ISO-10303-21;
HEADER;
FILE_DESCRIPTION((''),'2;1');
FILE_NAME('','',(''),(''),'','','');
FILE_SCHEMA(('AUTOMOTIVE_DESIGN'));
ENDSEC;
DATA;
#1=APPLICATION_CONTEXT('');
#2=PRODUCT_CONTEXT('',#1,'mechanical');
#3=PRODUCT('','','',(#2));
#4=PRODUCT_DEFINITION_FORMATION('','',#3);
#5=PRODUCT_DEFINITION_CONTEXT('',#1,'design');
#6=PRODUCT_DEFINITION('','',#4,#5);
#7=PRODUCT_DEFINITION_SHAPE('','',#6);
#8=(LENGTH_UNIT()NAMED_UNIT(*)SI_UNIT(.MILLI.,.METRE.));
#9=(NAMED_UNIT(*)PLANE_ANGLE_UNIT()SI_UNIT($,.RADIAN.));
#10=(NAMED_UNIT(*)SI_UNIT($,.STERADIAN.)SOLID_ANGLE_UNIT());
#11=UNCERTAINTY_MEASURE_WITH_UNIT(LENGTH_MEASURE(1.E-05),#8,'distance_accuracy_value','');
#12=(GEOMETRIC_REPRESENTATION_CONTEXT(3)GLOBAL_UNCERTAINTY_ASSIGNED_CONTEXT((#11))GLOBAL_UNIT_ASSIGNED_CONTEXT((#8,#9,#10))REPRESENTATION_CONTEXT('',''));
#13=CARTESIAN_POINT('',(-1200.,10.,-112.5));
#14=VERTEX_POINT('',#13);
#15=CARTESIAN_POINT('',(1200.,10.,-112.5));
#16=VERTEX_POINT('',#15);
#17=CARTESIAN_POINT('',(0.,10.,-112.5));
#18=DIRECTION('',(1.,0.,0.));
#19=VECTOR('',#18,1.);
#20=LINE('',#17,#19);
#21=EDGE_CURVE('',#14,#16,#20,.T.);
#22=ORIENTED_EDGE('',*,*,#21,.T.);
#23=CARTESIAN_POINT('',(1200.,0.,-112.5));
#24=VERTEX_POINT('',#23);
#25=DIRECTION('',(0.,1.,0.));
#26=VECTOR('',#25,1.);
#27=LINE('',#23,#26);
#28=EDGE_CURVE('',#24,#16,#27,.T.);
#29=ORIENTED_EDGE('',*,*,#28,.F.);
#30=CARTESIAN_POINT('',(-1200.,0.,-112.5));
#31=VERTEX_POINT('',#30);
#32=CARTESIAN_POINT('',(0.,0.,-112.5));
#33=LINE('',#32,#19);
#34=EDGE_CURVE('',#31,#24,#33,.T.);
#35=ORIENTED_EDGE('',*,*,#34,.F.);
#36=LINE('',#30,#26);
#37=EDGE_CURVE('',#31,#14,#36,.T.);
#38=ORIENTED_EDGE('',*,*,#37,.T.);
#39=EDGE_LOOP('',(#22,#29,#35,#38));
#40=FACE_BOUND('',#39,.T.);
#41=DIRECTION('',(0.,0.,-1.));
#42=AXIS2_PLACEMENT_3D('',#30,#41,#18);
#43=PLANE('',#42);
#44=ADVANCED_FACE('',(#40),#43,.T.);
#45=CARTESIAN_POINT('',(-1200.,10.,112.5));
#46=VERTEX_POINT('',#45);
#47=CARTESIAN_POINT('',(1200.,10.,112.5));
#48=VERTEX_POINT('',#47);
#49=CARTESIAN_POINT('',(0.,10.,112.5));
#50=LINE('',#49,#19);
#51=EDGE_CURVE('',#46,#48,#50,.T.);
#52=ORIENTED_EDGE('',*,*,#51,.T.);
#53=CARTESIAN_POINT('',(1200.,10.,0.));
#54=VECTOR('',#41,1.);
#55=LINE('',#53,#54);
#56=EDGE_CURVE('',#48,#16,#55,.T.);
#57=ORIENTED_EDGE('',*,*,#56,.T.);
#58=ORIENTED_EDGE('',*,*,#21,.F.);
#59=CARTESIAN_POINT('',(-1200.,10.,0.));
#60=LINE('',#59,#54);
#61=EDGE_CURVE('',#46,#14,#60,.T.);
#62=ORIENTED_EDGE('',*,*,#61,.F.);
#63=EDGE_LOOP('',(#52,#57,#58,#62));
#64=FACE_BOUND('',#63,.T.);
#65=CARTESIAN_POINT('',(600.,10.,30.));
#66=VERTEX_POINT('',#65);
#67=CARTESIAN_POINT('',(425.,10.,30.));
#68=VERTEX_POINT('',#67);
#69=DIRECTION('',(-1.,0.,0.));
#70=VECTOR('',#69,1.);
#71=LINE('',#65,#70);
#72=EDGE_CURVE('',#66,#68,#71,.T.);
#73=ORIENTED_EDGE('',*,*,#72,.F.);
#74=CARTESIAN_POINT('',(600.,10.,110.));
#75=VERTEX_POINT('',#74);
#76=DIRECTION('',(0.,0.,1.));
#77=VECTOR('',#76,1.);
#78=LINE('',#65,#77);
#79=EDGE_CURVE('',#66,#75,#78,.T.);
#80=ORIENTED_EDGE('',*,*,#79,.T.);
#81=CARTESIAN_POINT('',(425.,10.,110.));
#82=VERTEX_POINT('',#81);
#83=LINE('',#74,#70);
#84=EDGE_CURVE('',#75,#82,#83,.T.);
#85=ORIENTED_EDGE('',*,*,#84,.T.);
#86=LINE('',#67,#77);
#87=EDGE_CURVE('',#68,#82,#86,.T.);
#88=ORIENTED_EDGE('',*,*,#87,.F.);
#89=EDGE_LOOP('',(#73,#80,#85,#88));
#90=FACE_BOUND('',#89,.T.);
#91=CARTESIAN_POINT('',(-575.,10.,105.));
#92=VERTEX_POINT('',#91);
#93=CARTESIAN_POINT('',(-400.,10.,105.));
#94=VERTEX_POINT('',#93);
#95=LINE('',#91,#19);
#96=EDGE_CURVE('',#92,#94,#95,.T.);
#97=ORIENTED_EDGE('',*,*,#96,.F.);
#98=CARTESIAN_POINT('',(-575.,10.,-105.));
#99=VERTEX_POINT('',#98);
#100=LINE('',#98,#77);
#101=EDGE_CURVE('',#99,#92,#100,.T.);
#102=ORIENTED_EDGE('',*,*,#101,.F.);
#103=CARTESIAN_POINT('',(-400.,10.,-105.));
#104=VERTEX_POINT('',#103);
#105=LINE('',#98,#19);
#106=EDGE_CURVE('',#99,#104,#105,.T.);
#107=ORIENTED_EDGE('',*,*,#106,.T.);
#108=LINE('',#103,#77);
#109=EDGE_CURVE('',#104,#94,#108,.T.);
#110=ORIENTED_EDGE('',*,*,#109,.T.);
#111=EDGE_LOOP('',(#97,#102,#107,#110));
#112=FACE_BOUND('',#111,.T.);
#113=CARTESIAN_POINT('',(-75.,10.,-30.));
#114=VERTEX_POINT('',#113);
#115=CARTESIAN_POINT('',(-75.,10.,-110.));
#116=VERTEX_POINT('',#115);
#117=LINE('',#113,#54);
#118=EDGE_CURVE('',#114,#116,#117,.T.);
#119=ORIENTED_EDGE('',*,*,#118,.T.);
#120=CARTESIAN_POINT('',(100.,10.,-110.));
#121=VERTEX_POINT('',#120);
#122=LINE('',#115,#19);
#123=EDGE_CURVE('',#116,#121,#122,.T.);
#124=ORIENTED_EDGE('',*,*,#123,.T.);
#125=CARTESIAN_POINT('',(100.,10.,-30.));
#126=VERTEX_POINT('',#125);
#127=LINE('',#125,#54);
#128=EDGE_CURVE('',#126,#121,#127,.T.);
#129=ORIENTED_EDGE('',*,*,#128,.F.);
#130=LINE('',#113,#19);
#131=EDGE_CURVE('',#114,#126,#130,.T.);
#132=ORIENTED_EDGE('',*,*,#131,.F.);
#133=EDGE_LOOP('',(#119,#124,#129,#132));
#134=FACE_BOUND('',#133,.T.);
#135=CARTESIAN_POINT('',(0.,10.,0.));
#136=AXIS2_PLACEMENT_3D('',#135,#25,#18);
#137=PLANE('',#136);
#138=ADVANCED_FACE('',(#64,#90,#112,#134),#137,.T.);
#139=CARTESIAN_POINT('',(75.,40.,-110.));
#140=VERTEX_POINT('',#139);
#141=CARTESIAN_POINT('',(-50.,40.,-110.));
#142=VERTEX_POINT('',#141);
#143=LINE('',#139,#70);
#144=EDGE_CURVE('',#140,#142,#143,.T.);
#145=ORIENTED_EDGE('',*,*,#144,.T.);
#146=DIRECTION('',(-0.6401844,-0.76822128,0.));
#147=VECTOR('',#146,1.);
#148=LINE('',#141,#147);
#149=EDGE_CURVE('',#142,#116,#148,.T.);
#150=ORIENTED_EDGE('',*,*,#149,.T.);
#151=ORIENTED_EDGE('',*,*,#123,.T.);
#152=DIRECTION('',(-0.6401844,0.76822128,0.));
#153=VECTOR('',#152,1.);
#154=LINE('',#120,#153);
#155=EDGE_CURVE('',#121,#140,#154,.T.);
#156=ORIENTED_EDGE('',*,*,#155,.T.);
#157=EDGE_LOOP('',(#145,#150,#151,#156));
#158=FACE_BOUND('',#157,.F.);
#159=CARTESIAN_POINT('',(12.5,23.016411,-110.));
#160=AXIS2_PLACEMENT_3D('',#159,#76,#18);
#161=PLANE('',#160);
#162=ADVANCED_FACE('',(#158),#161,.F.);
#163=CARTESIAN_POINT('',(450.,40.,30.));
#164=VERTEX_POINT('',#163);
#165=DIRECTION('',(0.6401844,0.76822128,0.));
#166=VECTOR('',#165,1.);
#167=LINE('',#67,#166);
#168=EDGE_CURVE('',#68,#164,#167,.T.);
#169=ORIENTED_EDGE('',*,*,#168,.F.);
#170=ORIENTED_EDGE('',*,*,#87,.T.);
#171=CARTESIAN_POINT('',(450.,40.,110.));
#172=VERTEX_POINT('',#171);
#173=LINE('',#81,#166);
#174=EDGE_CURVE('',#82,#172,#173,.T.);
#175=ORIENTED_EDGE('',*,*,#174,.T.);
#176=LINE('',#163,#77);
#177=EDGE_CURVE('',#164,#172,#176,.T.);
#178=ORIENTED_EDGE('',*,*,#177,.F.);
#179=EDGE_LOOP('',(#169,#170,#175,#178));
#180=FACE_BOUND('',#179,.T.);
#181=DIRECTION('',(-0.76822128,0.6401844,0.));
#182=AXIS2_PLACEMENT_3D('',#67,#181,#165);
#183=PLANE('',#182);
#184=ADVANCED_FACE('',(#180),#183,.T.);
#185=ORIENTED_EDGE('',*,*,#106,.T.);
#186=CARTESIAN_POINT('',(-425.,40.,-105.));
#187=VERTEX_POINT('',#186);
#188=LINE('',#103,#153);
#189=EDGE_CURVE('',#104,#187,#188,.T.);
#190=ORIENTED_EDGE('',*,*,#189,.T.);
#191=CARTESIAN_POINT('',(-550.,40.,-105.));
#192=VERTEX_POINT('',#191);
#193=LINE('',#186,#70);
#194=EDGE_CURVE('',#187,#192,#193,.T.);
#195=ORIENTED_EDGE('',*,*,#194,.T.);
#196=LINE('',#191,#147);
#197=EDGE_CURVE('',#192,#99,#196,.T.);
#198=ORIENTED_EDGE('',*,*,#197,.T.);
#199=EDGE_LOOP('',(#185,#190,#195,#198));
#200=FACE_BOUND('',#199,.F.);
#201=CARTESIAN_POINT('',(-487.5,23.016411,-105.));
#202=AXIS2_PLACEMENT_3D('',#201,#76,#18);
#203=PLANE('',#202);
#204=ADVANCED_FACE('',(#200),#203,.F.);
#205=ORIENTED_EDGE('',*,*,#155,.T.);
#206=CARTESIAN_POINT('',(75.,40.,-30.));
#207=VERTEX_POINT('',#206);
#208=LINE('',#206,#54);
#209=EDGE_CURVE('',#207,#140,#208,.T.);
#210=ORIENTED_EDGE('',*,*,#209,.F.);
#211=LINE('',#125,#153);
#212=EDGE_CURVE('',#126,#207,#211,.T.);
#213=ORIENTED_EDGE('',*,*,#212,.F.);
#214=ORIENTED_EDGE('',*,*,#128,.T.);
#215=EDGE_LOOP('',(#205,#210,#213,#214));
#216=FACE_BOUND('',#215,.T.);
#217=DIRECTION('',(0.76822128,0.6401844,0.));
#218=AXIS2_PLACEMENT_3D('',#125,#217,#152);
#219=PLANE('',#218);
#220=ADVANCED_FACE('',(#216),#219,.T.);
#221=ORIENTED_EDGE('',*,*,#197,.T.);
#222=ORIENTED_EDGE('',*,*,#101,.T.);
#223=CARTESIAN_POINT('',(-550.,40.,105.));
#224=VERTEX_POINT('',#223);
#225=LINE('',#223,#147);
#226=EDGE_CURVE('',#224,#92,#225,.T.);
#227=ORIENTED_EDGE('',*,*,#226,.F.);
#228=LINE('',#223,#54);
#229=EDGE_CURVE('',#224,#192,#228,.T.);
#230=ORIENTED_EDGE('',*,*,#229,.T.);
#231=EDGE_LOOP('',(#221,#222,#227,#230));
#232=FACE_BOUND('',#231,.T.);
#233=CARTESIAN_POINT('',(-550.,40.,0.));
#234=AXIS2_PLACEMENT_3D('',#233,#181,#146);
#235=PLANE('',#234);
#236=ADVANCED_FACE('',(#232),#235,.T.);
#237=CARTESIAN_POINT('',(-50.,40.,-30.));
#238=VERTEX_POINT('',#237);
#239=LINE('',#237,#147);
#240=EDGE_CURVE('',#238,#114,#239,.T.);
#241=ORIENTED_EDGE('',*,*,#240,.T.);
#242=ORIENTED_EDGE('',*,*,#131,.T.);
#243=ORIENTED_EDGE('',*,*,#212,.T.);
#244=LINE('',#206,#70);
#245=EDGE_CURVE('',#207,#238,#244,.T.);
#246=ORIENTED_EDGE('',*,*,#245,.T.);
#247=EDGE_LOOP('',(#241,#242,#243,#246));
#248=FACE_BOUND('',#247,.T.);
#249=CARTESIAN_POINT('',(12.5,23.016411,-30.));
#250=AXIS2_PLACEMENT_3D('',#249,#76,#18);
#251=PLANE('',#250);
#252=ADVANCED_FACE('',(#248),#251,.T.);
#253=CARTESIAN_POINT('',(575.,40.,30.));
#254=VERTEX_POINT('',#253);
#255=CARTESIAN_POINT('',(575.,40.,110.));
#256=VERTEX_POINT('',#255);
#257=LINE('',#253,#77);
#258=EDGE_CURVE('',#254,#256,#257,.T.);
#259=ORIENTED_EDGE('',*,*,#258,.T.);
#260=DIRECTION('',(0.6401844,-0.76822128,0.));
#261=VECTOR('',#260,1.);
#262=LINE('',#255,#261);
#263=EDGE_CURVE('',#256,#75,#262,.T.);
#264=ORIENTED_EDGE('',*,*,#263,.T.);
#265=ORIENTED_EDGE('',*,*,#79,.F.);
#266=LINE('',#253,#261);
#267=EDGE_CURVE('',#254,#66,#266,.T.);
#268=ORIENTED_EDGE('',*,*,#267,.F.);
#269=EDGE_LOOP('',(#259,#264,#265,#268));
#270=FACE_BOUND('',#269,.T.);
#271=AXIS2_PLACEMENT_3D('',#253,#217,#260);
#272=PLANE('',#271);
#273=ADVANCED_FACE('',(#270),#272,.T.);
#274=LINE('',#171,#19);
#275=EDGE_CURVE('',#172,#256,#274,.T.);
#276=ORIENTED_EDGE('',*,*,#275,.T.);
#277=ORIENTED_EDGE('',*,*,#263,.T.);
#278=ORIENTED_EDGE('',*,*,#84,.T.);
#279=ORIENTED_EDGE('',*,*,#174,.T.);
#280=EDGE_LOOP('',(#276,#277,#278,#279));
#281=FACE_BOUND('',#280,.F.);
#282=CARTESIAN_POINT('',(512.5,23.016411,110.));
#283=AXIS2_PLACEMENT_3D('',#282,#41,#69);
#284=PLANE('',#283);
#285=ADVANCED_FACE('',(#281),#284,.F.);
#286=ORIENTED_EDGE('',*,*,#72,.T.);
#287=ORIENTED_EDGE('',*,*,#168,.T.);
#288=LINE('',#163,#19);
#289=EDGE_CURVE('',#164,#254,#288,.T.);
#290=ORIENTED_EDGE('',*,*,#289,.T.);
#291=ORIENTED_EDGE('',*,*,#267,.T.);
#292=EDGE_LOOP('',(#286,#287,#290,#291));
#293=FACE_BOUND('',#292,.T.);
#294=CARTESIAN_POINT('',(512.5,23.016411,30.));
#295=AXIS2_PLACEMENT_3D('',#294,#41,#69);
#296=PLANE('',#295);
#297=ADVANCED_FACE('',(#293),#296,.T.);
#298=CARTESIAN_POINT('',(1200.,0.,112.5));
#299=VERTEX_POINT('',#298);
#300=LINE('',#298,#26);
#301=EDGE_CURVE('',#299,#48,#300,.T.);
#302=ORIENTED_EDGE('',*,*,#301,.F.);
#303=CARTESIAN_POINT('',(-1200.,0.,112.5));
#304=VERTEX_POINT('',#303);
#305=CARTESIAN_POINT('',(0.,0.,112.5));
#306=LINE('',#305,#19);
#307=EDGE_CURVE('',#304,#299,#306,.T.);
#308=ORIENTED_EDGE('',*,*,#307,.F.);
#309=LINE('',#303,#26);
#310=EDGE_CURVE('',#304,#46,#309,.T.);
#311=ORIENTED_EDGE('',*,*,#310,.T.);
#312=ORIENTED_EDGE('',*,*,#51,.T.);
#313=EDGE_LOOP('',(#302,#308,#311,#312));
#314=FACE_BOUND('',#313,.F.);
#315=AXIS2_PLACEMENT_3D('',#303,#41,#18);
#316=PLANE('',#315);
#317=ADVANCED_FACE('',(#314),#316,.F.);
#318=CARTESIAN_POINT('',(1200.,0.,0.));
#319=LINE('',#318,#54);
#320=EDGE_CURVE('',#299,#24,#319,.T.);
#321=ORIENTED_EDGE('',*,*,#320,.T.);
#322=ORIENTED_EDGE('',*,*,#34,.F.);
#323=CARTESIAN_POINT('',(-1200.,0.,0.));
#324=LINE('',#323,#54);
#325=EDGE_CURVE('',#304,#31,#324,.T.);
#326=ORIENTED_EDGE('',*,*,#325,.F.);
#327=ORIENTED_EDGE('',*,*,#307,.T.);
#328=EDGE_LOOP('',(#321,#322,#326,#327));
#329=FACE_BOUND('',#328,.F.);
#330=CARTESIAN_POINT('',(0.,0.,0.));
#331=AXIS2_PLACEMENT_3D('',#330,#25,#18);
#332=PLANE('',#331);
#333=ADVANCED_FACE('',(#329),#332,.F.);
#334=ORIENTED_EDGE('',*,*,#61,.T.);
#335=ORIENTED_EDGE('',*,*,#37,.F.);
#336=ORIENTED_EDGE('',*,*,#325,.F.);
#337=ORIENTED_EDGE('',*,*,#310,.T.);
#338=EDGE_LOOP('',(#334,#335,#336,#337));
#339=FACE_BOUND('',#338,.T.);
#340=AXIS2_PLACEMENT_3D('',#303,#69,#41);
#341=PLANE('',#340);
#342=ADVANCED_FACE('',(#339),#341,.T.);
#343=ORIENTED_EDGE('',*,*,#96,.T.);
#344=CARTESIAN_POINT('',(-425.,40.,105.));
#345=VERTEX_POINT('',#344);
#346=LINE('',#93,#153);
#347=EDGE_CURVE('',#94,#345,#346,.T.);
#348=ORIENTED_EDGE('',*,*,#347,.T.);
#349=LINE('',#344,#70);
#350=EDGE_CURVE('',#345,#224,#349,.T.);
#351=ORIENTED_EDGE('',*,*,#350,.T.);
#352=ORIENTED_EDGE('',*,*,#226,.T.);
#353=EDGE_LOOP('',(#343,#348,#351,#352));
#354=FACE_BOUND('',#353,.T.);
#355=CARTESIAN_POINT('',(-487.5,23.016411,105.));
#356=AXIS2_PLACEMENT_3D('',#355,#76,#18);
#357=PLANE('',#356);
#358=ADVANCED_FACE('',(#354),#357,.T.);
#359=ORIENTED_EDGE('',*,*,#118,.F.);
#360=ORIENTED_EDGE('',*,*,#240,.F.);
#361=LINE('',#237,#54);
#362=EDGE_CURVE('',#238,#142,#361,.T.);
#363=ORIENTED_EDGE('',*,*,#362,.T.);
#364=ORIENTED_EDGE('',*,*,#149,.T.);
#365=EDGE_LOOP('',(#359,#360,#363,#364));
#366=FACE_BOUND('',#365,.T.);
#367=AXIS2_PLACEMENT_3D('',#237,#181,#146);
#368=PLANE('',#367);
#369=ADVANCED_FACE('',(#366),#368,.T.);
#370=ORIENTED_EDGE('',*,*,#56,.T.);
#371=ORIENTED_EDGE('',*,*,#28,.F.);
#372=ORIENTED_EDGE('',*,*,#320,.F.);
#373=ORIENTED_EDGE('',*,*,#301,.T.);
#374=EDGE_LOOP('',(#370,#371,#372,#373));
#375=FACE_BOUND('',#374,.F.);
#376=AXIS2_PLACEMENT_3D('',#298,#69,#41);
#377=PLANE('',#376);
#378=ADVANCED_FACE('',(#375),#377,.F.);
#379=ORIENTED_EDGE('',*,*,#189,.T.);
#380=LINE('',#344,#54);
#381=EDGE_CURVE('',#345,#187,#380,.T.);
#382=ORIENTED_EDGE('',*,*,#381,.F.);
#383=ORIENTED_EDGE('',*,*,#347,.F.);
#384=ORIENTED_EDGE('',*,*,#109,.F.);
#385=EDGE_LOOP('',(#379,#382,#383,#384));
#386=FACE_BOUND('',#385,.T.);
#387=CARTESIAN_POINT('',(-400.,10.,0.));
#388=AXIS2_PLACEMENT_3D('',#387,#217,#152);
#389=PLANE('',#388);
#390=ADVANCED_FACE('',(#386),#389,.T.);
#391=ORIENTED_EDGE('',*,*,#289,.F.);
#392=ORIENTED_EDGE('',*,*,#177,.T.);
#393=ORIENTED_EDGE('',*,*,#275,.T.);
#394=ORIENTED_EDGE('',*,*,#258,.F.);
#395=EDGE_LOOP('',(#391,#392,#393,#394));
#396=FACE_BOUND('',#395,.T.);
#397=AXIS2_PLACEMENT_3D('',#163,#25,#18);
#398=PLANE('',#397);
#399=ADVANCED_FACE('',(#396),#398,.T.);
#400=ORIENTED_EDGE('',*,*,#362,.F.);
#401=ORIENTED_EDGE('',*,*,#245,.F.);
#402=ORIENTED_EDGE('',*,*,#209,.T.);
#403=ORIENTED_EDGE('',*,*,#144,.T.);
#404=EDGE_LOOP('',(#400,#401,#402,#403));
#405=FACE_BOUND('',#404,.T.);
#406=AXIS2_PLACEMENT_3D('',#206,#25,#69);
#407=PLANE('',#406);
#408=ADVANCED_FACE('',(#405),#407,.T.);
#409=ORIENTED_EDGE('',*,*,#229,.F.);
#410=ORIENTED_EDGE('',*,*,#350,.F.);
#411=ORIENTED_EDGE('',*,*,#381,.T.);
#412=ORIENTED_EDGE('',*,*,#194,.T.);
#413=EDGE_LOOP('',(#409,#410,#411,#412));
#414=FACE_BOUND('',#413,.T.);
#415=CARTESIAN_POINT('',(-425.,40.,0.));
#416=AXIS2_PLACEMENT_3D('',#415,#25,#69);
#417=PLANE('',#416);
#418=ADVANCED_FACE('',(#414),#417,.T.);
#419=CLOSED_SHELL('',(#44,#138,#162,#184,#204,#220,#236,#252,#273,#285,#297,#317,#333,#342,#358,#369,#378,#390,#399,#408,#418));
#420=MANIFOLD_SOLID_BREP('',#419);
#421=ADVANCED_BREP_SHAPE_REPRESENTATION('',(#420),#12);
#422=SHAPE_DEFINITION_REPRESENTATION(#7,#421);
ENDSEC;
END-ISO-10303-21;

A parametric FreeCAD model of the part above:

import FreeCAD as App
import Part
import Sketcher

doc = App.newDocument("Part")
body = doc.addObject("PartDesign::Body", "Body")

# Sketch on XZ plane
sketch1 = doc.addObject("Sketcher::SketchObject", "Sketch")
body.addObject(sketch1)
sketch1.AttachmentSupport = (doc.XZ_Plane, [""])
sketch1.MapMode = "FlatFace"
sketch1.addGeometry([
    Part.LineSegment(App.Vector(-1200, -112.5, 0), App.Vector(-1200, 112.5, 0)),
    Part.LineSegment(App.Vector(-1200, 112.5, 0), App.Vector(1200, 112.5, 0)),
    Part.LineSegment(App.Vector(1200, 112.5, 0), App.Vector(1200, -112.5, 0)),
    Part.LineSegment(App.Vector(1200, -112.5, 0), App.Vector(-1200, -112.5, 0)),
], False)
sketch1.addConstraint([
    Sketcher.Constraint("Coincident", 0, 2, 1, 1),
    Sketcher.Constraint("Coincident", 1, 2, 2, 1),
    Sketcher.Constraint("Coincident", 2, 2, 3, 1),
    Sketcher.Constraint("Coincident", 3, 2, 0, 1),
    Sketcher.Constraint("Vertical", 0),
    Sketcher.Constraint("Horizontal", 1),
    Sketcher.Constraint("Vertical", 2),
    Sketcher.Constraint("Horizontal", 3),
    Sketcher.Constraint("Symmetric", 0, 2, 2, 2, -1, 1),
    Sketcher.Constraint("DistanceX", 1, 1, 1, 2, 2400.0),
    Sketcher.Constraint("DistanceY", 0, 1, 0, 2, 225.0),
])
pad1 = doc.addObject("PartDesign::Pad", "Pad")
body.addObject(pad1)
pad1.Profile = sketch1
pad1.Length = 10
pad1.Reversed = True

# Sketch on XY plane
sketch2 = doc.addObject("Sketcher::SketchObject", "Sketch001")
body.addObject(sketch2)
sketch2.AttachmentSupport = (doc.XY_Plane, [""])
sketch2.MapMode = "FlatFace"
sketch2.AttachmentOffset = App.Placement(App.Vector(0, 0, 30), App.Rotation())
sketch2.addGeometry([
    Part.LineSegment(App.Vector(450, 40, 0), App.Vector(425, 10, 0)),
    Part.LineSegment(App.Vector(425, 10, 0), App.Vector(600, 10, 0)),
    Part.LineSegment(App.Vector(600, 10, 0), App.Vector(575, 40, 0)),
    Part.LineSegment(App.Vector(575, 40, 0), App.Vector(450, 40, 0)),
], False)
sketch2.addConstraint([
    Sketcher.Constraint("Coincident", 0, 2, 1, 1),
    Sketcher.Constraint("Coincident", 1, 2, 2, 1),
    Sketcher.Constraint("Coincident", 2, 2, 3, 1),
    Sketcher.Constraint("Coincident", 3, 2, 0, 1),
    Sketcher.Constraint("Horizontal", 1),
    Sketcher.Constraint("Horizontal", 3),
    Sketcher.Constraint("Equal", 0, 2),
    Sketcher.Constraint("DistanceX", 1, 1, 1, 2, 175.0),
    Sketcher.Constraint("DistanceX", 3, 2, 3, 1, 125.0),
    Sketcher.Constraint("DistanceX", -1, 1, 0, 2, 425.0),
    Sketcher.Constraint("DistanceY", -1, 1, 0, 2, 10.0),
    Sketcher.Constraint("DistanceY", -1, 1, 2, 2, 40.0),
])
pad2 = doc.addObject("PartDesign::Pad", "Pad001")
body.addObject(pad2)
pad2.Profile = sketch2
pad2.Length = 80

# Sketch on XY plane
sketch3 = doc.addObject("Sketcher::SketchObject", "Sketch002")
body.addObject(sketch3)
sketch3.AttachmentSupport = (doc.XY_Plane, [""])
sketch3.MapMode = "FlatFace"
sketch3.AttachmentOffset = App.Placement(App.Vector(0, 0, -30), App.Rotation())
sketch3.addGeometry([
    Part.LineSegment(App.Vector(-50, 40, 0), App.Vector(-75, 10, 0)),
    Part.LineSegment(App.Vector(-75, 10, 0), App.Vector(100, 10, 0)),
    Part.LineSegment(App.Vector(100, 10, 0), App.Vector(75, 40, 0)),
    Part.LineSegment(App.Vector(75, 40, 0), App.Vector(-50, 40, 0)),
], False)
sketch3.addConstraint([
    Sketcher.Constraint("Coincident", 0, 2, 1, 1),
    Sketcher.Constraint("Coincident", 1, 2, 2, 1),
    Sketcher.Constraint("Coincident", 2, 2, 3, 1),
    Sketcher.Constraint("Coincident", 3, 2, 0, 1),
    Sketcher.Constraint("Horizontal", 1),
    Sketcher.Constraint("Horizontal", 3),
    Sketcher.Constraint("Equal", 0, 2),
    Sketcher.Constraint("DistanceX", 1, 1, 1, 2, 175.0),
    Sketcher.Constraint("DistanceX", 3, 2, 3, 1, 125.0),
    Sketcher.Constraint("DistanceX", 0, 2, -1, 1, 75.0),
    Sketcher.Constraint("DistanceY", -1, 1, 0, 2, 10.0),
    Sketcher.Constraint("DistanceY", -1, 1, 2, 2, 40.0),
])
pad3 = doc.addObject("PartDesign::Pad", "Pad002")
body.addObject(pad3)
pad3.Profile = sketch3
pad3.Length = 80
pad3.Reversed = True

# Sketch on XY plane
sketch4 = doc.addObject("Sketcher::SketchObject", "Sketch003")
body.addObject(sketch4)
sketch4.AttachmentSupport = (doc.XY_Plane, [""])
sketch4.MapMode = "FlatFace"
sketch4.addGeometry([
    Part.LineSegment(App.Vector(-550, 40, 0), App.Vector(-575, 10, 0)),
    Part.LineSegment(App.Vector(-575, 10, 0), App.Vector(-400, 10, 0)),
    Part.LineSegment(App.Vector(-400, 10, 0), App.Vector(-425, 40, 0)),
    Part.LineSegment(App.Vector(-425, 40, 0), App.Vector(-550, 40, 0)),
], False)
sketch4.addConstraint([
    Sketcher.Constraint("Coincident", 0, 2, 1, 1),
    Sketcher.Constraint("Coincident", 1, 2, 2, 1),
    Sketcher.Constraint("Coincident", 2, 2, 3, 1),
    Sketcher.Constraint("Coincident", 3, 2, 0, 1),
    Sketcher.Constraint("Horizontal", 1),
    Sketcher.Constraint("Horizontal", 3),
    Sketcher.Constraint("Equal", 0, 2),
    Sketcher.Constraint("DistanceX", 1, 1, 1, 2, 175.0),
    Sketcher.Constraint("DistanceX", 3, 2, 3, 1, 125.0),
    Sketcher.Constraint("DistanceX", 0, 2, -1, 1, 575.0),
    Sketcher.Constraint("DistanceY", -1, 1, 0, 2, 10.0),
    Sketcher.Constraint("DistanceY", -1, 1, 2, 2, 40.0),
])
pad4 = doc.addObject("PartDesign::Pad", "Pad003")
body.addObject(pad4)
pad4.Profile = sketch4
pad4.Type = "TwoLengths"
pad4.Length = 105
pad4.Length2 = 105

doc.recompute()
